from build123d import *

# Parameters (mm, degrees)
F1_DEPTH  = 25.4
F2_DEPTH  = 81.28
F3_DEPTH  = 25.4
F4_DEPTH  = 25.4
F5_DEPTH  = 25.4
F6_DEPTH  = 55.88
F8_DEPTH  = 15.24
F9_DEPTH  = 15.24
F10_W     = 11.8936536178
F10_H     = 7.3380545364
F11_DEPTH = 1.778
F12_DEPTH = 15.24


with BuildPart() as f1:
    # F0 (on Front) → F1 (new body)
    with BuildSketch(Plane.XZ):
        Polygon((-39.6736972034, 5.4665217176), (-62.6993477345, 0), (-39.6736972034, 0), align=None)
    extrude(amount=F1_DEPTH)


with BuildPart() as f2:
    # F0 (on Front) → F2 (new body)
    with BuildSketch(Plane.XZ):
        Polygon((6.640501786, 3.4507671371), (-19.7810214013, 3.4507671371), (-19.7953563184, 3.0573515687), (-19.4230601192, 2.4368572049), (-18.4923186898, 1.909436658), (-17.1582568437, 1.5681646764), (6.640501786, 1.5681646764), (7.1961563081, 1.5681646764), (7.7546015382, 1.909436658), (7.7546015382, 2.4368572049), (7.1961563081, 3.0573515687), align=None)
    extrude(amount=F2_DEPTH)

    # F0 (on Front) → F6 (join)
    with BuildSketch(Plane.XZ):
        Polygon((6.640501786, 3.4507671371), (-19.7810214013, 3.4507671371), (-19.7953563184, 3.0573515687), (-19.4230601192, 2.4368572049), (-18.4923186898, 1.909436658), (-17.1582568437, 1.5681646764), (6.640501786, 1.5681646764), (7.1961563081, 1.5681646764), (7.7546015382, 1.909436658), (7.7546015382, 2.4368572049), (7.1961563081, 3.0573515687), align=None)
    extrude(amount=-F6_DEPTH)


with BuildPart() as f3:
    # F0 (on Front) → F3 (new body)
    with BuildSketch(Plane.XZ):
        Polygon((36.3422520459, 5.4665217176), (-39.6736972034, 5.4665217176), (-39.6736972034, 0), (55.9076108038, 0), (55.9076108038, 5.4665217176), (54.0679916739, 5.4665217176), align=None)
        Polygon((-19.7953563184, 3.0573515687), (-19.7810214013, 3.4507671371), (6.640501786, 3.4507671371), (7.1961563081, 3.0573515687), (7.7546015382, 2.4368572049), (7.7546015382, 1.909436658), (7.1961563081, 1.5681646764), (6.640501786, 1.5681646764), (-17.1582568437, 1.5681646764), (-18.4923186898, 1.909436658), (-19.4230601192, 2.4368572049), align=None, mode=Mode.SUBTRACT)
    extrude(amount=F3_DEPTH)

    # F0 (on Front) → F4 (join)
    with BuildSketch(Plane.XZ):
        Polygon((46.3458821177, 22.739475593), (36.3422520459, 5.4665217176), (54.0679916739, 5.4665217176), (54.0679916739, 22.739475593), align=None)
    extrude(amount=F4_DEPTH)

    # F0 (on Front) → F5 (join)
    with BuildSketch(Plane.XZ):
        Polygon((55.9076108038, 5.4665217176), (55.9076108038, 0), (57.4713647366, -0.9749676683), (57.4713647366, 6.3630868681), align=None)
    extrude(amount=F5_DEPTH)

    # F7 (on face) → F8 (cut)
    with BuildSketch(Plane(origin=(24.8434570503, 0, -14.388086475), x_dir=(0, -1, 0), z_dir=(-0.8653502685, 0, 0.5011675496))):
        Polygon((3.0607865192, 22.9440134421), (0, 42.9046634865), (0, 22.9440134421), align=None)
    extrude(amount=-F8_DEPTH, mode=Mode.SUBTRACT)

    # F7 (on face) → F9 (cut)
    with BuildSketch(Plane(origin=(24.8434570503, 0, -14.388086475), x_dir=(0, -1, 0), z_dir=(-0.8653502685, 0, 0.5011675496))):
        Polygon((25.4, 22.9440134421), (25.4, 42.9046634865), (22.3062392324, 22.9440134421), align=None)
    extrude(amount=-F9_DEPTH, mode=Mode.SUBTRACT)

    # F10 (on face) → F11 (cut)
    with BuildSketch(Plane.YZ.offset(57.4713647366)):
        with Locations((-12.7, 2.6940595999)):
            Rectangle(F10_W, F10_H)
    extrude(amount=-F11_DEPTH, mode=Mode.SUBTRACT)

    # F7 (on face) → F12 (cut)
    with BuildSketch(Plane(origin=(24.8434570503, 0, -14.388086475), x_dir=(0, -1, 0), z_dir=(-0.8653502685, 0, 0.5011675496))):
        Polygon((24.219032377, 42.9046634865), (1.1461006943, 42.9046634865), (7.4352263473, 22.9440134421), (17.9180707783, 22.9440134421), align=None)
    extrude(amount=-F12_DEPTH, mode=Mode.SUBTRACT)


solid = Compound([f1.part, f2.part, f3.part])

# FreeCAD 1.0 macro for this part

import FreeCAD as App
import Part
import Sketcher
from FreeCAD import Vector
Q = App.Units.Quantity

doc = App.newDocument("Part")
params = doc.addObject("Spreadsheet::Sheet", "Params")
for row, (alias, value) in enumerate([
    ("pad1_length", "1 in"),
    ("pad2_length", "3.2 in"),
    ("pad3_length", "2.2 in"),
    ("pad4_length", "1 in"),
    ("pad5_length", "1 in"),
    ("pad6_length", "1 in"),
    ("pocket1_length", "0.6 in"),
    ("pocket2_length", "0.6 in"),
    ("pocket3_length", "0.07 in"),
    ("pocket4_length", "0.6 in"),
], start=1):
    params.set(f"A{row}", alias)
    params.set(f"B{row}", "=" + value)
    params.setAlias(f"B{row}", alias)

body = doc.addObject("PartDesign::Body", "Body")

# Sketch on XZ plane
sketch1 = body.newObject("Sketcher::SketchObject", "Sketch")
sketch1.AttachmentSupport = (doc.getObject("XZ_Plane"), [""])
sketch1.MapMode = "FlatFace"
sketch1.addGeometry([
    Part.LineSegment(Vector(-40, 5, 0), Vector(-63, 0, 0)),
    Part.LineSegment(Vector(-63, 0, 0), Vector(-40, 0, 0)),
    Part.LineSegment(Vector(-40, 0, 0), Vector(-40, 5, 0)),
], False)
sketch1.addConstraint([
    Sketcher.Constraint("Coincident", 0, 2, 1, 1),
    Sketcher.Constraint("Coincident", 1, 2, 2, 1),
    Sketcher.Constraint("Coincident", 2, 2, 0, 1),
    Sketcher.Constraint("Horizontal", 1),
    Sketcher.Constraint("Vertical", 2),
    Sketcher.Constraint("PointOnObject", 0, 2, -1),
    Sketcher.Constraint("DistanceX", 1, 1, 1, 2, 23.025651),
    Sketcher.Constraint("DistanceY", 2, 1, 2, 2, 5.466522),
    Sketcher.Constraint("DistanceX", 0, 2, -1, 1, 62.699348),
])
pad1 = body.newObject("PartDesign::Pad", "Pad")
pad1.Profile = sketch1
pad1.setExpression("Length", "Params.pad1_length")
body2 = doc.addObject("PartDesign::Body", "Body001")

# Sketch on XZ plane
sketch2 = body2.newObject("Sketcher::SketchObject", "Sketch001")
sketch2.AttachmentSupport = (doc.getObject("XZ_Plane001"), [""])
sketch2.MapMode = "FlatFace"
sketch2.addGeometry([
    Part.LineSegment(Vector(6.64, 3.45, 0), Vector(-19.78, 3.45, 0)),  # 0
    Part.LineSegment(Vector(-19.78, 3.45, 0), Vector(-19.8, 3.06, 0)),  # 1
    Part.LineSegment(Vector(-19.8, 3.06, 0), Vector(-19.42, 2.44, 0)),  # 2
    Part.LineSegment(Vector(-19.42, 2.44, 0), Vector(-18.49, 1.91, 0)),  # 3
    Part.LineSegment(Vector(-18.49, 1.91, 0), Vector(-17.16, 1.57, 0)),  # 4
    Part.LineSegment(Vector(-17.16, 1.57, 0), Vector(7.2, 1.57, 0)),  # 5
    Part.LineSegment(Vector(7.2, 1.57, 0), Vector(7.75, 1.91, 0)),  # 6
    Part.LineSegment(Vector(7.75, 1.91, 0), Vector(7.75, 2.44, 0)),  # 7
    Part.LineSegment(Vector(7.75, 2.44, 0), Vector(7.2, 3.06, 0)),  # 8
    Part.LineSegment(Vector(7.2, 3.06, 0), Vector(6.64, 3.45, 0)),  # 9
], False)
sketch2.addConstraint([
    Sketcher.Constraint("Coincident", 0, 2, 1, 1),
    Sketcher.Constraint("Coincident", 1, 2, 2, 1),
    Sketcher.Constraint("Coincident", 2, 2, 3, 1),
    Sketcher.Constraint("Coincident", 3, 2, 4, 1),
    Sketcher.Constraint("Coincident", 4, 2, 5, 1),
    Sketcher.Constraint("Coincident", 5, 2, 6, 1),
    Sketcher.Constraint("Coincident", 6, 2, 7, 1),
    Sketcher.Constraint("Coincident", 7, 2, 8, 1),
    Sketcher.Constraint("Coincident", 8, 2, 9, 1),
    Sketcher.Constraint("Coincident", 9, 2, 0, 1),
    Sketcher.Constraint("Horizontal", 0),
    Sketcher.Constraint("Horizontal", 5),
    Sketcher.Constraint("Vertical", 7),
    Sketcher.Constraint("Horizontal", 3, 2, 6, 2),
    Sketcher.Constraint("Horizontal", 2, 2, 7, 2),
    Sketcher.Constraint("Horizontal", 1, 2, 8, 2),
    Sketcher.Constraint("Vertical", 5, 2, 8, 2),
    Sketcher.Constraint("DistanceY", 7, 1, 7, 2, 0.527421),
    Sketcher.Constraint("DistanceX", -1, 1, 6, 2, 7.754602),
    Sketcher.Constraint("DistanceX", -1, 1, 9, 2, 6.640502),
    Sketcher.Constraint("DistanceX", 1, 2, 4, 2, 2.637099),
    Sketcher.Constraint("Distance", 3, 1.069791),
    Sketcher.Constraint("Distance", 4, 1.377021),
    Sketcher.Constraint("Distance", 8, 0.83479),
    Sketcher.Constraint("Distance", 9, 0.680829),
    Sketcher.Constraint("DistanceX", 0, 2, 0, 1, 26.421523),
    Sketcher.Constraint("DistanceX", 5, 1, 5, 2, 24.354413),
    Sketcher.Constraint("DistanceY", -1, 1, 1, 2, 3.057352),
    Sketcher.Constraint("DistanceX", 2, 2, -1, 1, 19.42306),
    Sketcher.Constraint("DistanceY", 2, 2, 0, 2, 1.01391),
])
pad2 = body2.newObject("PartDesign::Pad", "Pad001")
pad2.Profile = sketch2
pad2.setExpression("Length", "Params.pad2_length")

# Sketch on XZ plane
sketch3 = body2.newObject("Sketcher::SketchObject", "Sketch002")
sketch3.AttachmentSupport = (doc.getObject("XZ_Plane001"), [""])
sketch3.MapMode = "FlatFace"
sketch3.addGeometry([
    Part.LineSegment(Vector(6.64, 3.45, 0), Vector(-19.78, 3.45, 0)),  # 0
    Part.LineSegment(Vector(-19.78, 3.45, 0), Vector(-19.8, 3.06, 0)),  # 1
    Part.LineSegment(Vector(-19.8, 3.06, 0), Vector(-19.42, 2.44, 0)),  # 2
    Part.LineSegment(Vector(-19.42, 2.44, 0), Vector(-18.49, 1.91, 0)),  # 3
    Part.LineSegment(Vector(-18.49, 1.91, 0), Vector(-17.16, 1.57, 0)),  # 4
    Part.LineSegment(Vector(-17.16, 1.57, 0), Vector(7.2, 1.57, 0)),  # 5
    Part.LineSegment(Vector(7.2, 1.57, 0), Vector(7.75, 1.91, 0)),  # 6
    Part.LineSegment(Vector(7.75, 1.91, 0), Vector(7.75, 2.44, 0)),  # 7
    Part.LineSegment(Vector(7.75, 2.44, 0), Vector(7.2, 3.06, 0)),  # 8
    Part.LineSegment(Vector(7.2, 3.06, 0), Vector(6.64, 3.45, 0)),  # 9
], False)
sketch3.addConstraint([
    Sketcher.Constraint("Coincident", 0, 2, 1, 1),
    Sketcher.Constraint("Coincident", 1, 2, 2, 1),
    Sketcher.Constraint("Coincident", 2, 2, 3, 1),
    Sketcher.Constraint("Coincident", 3, 2, 4, 1),
    Sketcher.Constraint("Coincident", 4, 2, 5, 1),
    Sketcher.Constraint("Coincident", 5, 2, 6, 1),
    Sketcher.Constraint("Coincident", 6, 2, 7, 1),
    Sketcher.Constraint("Coincident", 7, 2, 8, 1),
    Sketcher.Constraint("Coincident", 8, 2, 9, 1),
    Sketcher.Constraint("Coincident", 9, 2, 0, 1),
    Sketcher.Constraint("Horizontal", 0),
    Sketcher.Constraint("Horizontal", 5),
    Sketcher.Constraint("Vertical", 7),
    Sketcher.Constraint("Horizontal", 3, 2, 6, 2),
    Sketcher.Constraint("Horizontal", 2, 2, 7, 2),
    Sketcher.Constraint("Horizontal", 1, 2, 8, 2),
    Sketcher.Constraint("Vertical", 5, 2, 8, 2),
    Sketcher.Constraint("DistanceY", 7, 1, 7, 2, 0.527421),
    Sketcher.Constraint("DistanceX", -1, 1, 6, 2, 7.754602),
    Sketcher.Constraint("DistanceX", -1, 1, 9, 2, 6.640502),
    Sketcher.Constraint("DistanceX", 1, 2, 4, 2, 2.637099),
    Sketcher.Constraint("Distance", 3, 1.069791),
    Sketcher.Constraint("Distance", 4, 1.377021),
    Sketcher.Constraint("Distance", 8, 0.83479),
    Sketcher.Constraint("Distance", 9, 0.680829),
    Sketcher.Constraint("DistanceX", 0, 2, 0, 1, 26.421523),
    Sketcher.Constraint("DistanceX", 5, 1, 5, 2, 24.354413),
    Sketcher.Constraint("DistanceY", -1, 1, 1, 2, 3.057352),
    Sketcher.Constraint("DistanceX", 2, 2, -1, 1, 19.42306),
    Sketcher.Constraint("DistanceY", 2, 2, 0, 2, 1.01391),
])
pad3 = body2.newObject("PartDesign::Pad", "Pad002")
pad3.Profile = sketch3
pad3.setExpression("Length", "Params.pad3_length")
pad3.Reversed = True
body3 = doc.addObject("PartDesign::Body", "Body002")

# Sketch on XZ plane
sketch4 = body3.newObject("Sketcher::SketchObject", "Sketch003")
sketch4.AttachmentSupport = (doc.getObject("XZ_Plane002"), [""])
sketch4.MapMode = "FlatFace"
sketch4.addGeometry([
    Part.LineSegment(Vector(-39.67, 5.47, 0), Vector(-39.67, 0, 0)),  # 0
    Part.LineSegment(Vector(-39.67, 0, 0), Vector(55.91, 0, 0)),  # 1
    Part.LineSegment(Vector(55.91, 0, 0), Vector(55.91, 5.47, 0)),  # 2
    Part.LineSegment(Vector(55.91, 5.47, 0), Vector(-39.67, 5.47, 0)),  # 3
    Part.LineSegment(Vector(-19.42, 2.44, 0), Vector(-19.8, 3.06, 0)),  # 4
    Part.LineSegment(Vector(-19.8, 3.06, 0), Vector(-19.78, 3.45, 0)),  # 5
    Part.LineSegment(Vector(-19.78, 3.45, 0), Vector(6.64, 3.45, 0)),  # 6
    Part.LineSegment(Vector(6.64, 3.45, 0), Vector(7.2, 3.06, 0)),  # 7
    Part.LineSegment(Vector(7.2, 3.06, 0), Vector(7.75, 2.44, 0)),  # 8
    Part.LineSegment(Vector(7.75, 2.44, 0), Vector(7.75, 1.91, 0)),  # 9
    Part.LineSegment(Vector(7.75, 1.91, 0), Vector(7.2, 1.57, 0)),  # 10
    Part.LineSegment(Vector(7.2, 1.57, 0), Vector(-17.16, 1.57, 0)),  # 11
    Part.LineSegment(Vector(-17.16, 1.57, 0), Vector(-18.49, 1.91, 0)),  # 12
    Part.LineSegment(Vector(-18.49, 1.91, 0), Vector(-19.42, 2.44, 0)),  # 13
], False)
sketch4.addConstraint([
    Sketcher.Constraint("Coincident", 0, 2, 1, 1),
    Sketcher.Constraint("Coincident", 1, 2, 2, 1),
    Sketcher.Constraint("Coincident", 2, 2, 3, 1),
    Sketcher.Constraint("Coincident", 3, 2, 0, 1),
    Sketcher.Constraint("Coincident", 4, 2, 5, 1),
    Sketcher.Constraint("Coincident", 5, 2, 6, 1),
    Sketcher.Constraint("Coincident", 6, 2, 7, 1),
    Sketcher.Constraint("Coincident", 7, 2, 8, 1),
    Sketcher.Constraint("Coincident", 8, 2, 9, 1),
    Sketcher.Constraint("Coincident", 9, 2, 10, 1),
    Sketcher.Constraint("Coincident", 10, 2, 11, 1),
    Sketcher.Constraint("Coincident", 11, 2, 12, 1),
    Sketcher.Constraint("Coincident", 12, 2, 13, 1),
    Sketcher.Constraint("Coincident", 13, 2, 4, 1),
    Sketcher.Constraint("Vertical", 0),
    Sketcher.Constraint("Horizontal", 1),
    Sketcher.Constraint("Vertical", 2),
    Sketcher.Constraint("Horizontal", 3),
    Sketcher.Constraint("Horizontal", 6),
    Sketcher.Constraint("Vertical", 9),
    Sketcher.Constraint("Horizontal", 11),
    Sketcher.Constraint("PointOnObject", 0, 2, -1),
    Sketcher.Constraint("Horizontal", 4, 2, 7, 2),
    Sketcher.Constraint("Horizontal", 9, 2, 12, 2),
    Sketcher.Constraint("Horizontal", 8, 2, 13, 2),
    Sketcher.Constraint("Vertical", 7, 2, 10, 2),
    Sketcher.Constraint("DistanceX", 1, 1, 1, 2, 95.581308),
    Sketcher.Constraint("DistanceY", 0, 2, 0, 1, 5.466522),
    Sketcher.Constraint("DistanceY", 9, 2, 9, 1, 0.527421),
    Sketcher.Constraint("DistanceX", -1, 1, 6, 2, 6.640502),
    Sketcher.Constraint("DistanceX", -1, 1, 8, 2, 7.754602),
    Sketcher.Constraint("DistanceX", 3, 2, 6, 2, 46.314199),
    Sketcher.Constraint("DistanceX", 4, 2, 11, 2, 2.637099),
    Sketcher.Constraint("Distance", 7, 0.680829),
    Sketcher.Constraint("Distance", 8, 0.83479),
    Sketcher.Constraint("Distance", 12, 1.377021),
    Sketcher.Constraint("Distance", 13, 1.069791),
    Sketcher.Constraint("DistanceX", 6, 1, 6, 2, 26.421523),
    Sketcher.Constraint("DistanceX", 11, 2, 11, 1, 24.354413),
    Sketcher.Constraint("DistanceY", -1, 1, 4, 2, 3.057352),
    Sketcher.Constraint("DistanceX", 12, 2, -1, 1, 18.492319),
    Sketcher.Constraint("DistanceX", 3, 2, 4, 2, 19.878341),
])
pad4 = body3.newObject("PartDesign::Pad", "Pad003")
pad4.Profile = sketch4
pad4.setExpression("Length", "Params.pad4_length")

# Sketch on XZ plane
sketch5 = body3.newObject("Sketcher::SketchObject", "Sketch004")
sketch5.AttachmentSupport = (doc.getObject("XZ_Plane002"), [""])
sketch5.MapMode = "FlatFace"
sketch5.addGeometry([
    Part.LineSegment(Vector(46, 23, 0), Vector(36, 5, 0)),
    Part.LineSegment(Vector(36, 5, 0), Vector(54, 5, 0)),
    Part.LineSegment(Vector(54, 5, 0), Vector(54, 23, 0)),
    Part.LineSegment(Vector(54, 23, 0), Vector(46, 23, 0)),
], False)
sketch5.addConstraint([
    Sketcher.Constraint("Coincident", 0, 2, 1, 1),
    Sketcher.Constraint("Coincident", 1, 2, 2, 1),
    Sketcher.Constraint("Coincident", 2, 2, 3, 1),
    Sketcher.Constraint("Coincident", 3, 2, 0, 1),
    Sketcher.Constraint("Horizontal", 1),
    Sketcher.Constraint("Vertical", 2),
    Sketcher.Constraint("Horizontal", 3),
    Sketcher.Constraint("DistanceX", 1, 1, 1, 2, 17.72574),
    Sketcher.Constraint("DistanceX", 3, 2, 3, 1, 7.72211),
    Sketcher.Constraint("Distance", 0, 19.96065),
    Sketcher.Constraint("DistanceY", -1, 1, 0, 2, 5.466522),
    Sketcher.Constraint("DistanceX", -1, 1, 1, 2, 54.067992),
])
pad5 = body3.newObject("PartDesign::Pad", "Pad004")
pad5.Profile = sketch5
pad5.setExpression("Length", "Params.pad5_length")

# Sketch on XZ plane
sketch6 = body3.newObject("Sketcher::SketchObject", "Sketch005")
sketch6.AttachmentSupport = (doc.getObject("XZ_Plane002"), [""])
sketch6.MapMode = "FlatFace"
sketch6.addGeometry([
    Part.LineSegment(Vector(55.9, 5.5, 0), Vector(55.9, 0, 0)),
    Part.LineSegment(Vector(55.9, 0, 0), Vector(57.5, -1, 0)),
    Part.LineSegment(Vector(57.5, -1, 0), Vector(57.5, 6.4, 0)),
    Part.LineSegment(Vector(57.5, 6.4, 0), Vector(55.9, 5.5, 0)),
], False)
sketch6.addConstraint([
    Sketcher.Constraint("Coincident", 0, 2, 1, 1),
    Sketcher.Constraint("Coincident", 1, 2, 2, 1),
    Sketcher.Constraint("Coincident", 2, 2, 3, 1),
    Sketcher.Constraint("Coincident", 3, 2, 0, 1),
    Sketcher.Constraint("Vertical", 0),
    Sketcher.Constraint("Vertical", 2),
    Sketcher.Constraint("PointOnObject", 0, 2, -1),
    Sketcher.Constraint("DistanceY", 0, 2, 0, 1, 5.466522),
    Sketcher.Constraint("Distance", 3, 1.802541),
    Sketcher.Constraint("DistanceY", 2, 1, 2, 2, 7.338055),
    Sketcher.Constraint("DistanceX", -1, 1, 0, 2, 55.907611),
    Sketcher.Constraint("DistanceY", 1, 2, 3, 2, 6.441489),
])
pad6 = body3.newObject("PartDesign::Pad", "Pad005")
pad6.Profile = sketch6
pad6.setExpression("Length", "Params.pad6_length")

# Sketch on an angled plane
sketch7 = body3.newObject("Sketcher::SketchObject", "Sketch006")
sketch7.Placement = App.Placement(Vector(24.843457, 0, -14.388086), App.Rotation(Vector(0, -1, 0), Vector(0.50116755, 0, 0.865350269), Vector(-0.865350269, 0, 0.50116755), "ZXY"))
sketch7.addGeometry([
    Part.LineSegment(Vector(3.1, 22.9, 0), Vector(0, 42.9, 0)),
    Part.LineSegment(Vector(0, 42.9, 0), Vector(0, 22.9, 0)),
    Part.LineSegment(Vector(0, 22.9, 0), Vector(3.1, 22.9, 0)),
], False)
sketch7.addConstraint([
    Sketcher.Constraint("Coincident", 0, 2, 1, 1),
    Sketcher.Constraint("Coincident", 1, 2, 2, 1),
    Sketcher.Constraint("Coincident", 2, 2, 0, 1),
    Sketcher.Constraint("Vertical", 1),
    Sketcher.Constraint("Horizontal", 2),
    Sketcher.Constraint("PointOnObject", 0, 2, -2),
    Sketcher.Constraint("DistanceY", 1, 2, 1, 1, 19.96065),
    Sketcher.Constraint("Distance", 0, 20.193959),
    Sketcher.Constraint("DistanceY", -1, 1, 0, 2, 42.904664),
])
pocket1 = body3.newObject("PartDesign::Pocket", "Pocket")
pocket1.Profile = sketch7
pocket1.setExpression("Length", "Params.pocket1_length")

# Sketch on an angled plane
sketch8 = body3.newObject("Sketcher::SketchObject", "Sketch007")
sketch8.Placement = App.Placement(Vector(24.843457, 0, -14.388086), App.Rotation(Vector(0, -1, 0), Vector(0.50116755, 0, 0.865350269), Vector(-0.865350269, 0, 0.50116755), "ZXY"))
sketch8.addGeometry([
    Part.LineSegment(Vector(25.4, 22.9, 0), Vector(25.4, 42.9, 0)),
    Part.LineSegment(Vector(25.4, 42.9, 0), Vector(22.3, 22.9, 0)),
    Part.LineSegment(Vector(22.3, 22.9, 0), Vector(25.4, 22.9, 0)),
], False)
sketch8.addConstraint([
    Sketcher.Constraint("Coincident", 0, 2, 1, 1),
    Sketcher.Constraint("Coincident", 1, 2, 2, 1),
    Sketcher.Constraint("Coincident", 2, 2, 0, 1),
    Sketcher.Constraint("Vertical", 0),
    Sketcher.Constraint("Horizontal", 2),
    Sketcher.Constraint("DistanceX", -1, 1, 0, 2, Q("1 in")),
    Sketcher.Constraint("DistanceX", 2, 1, 2, 2, 3.093761),
    Sketcher.Constraint("DistanceY", 0, 1, 0, 2, 19.96065),
    Sketcher.Constraint("DistanceY", -1, 1, 0, 2, 42.904664),
])
pocket2 = body3.newObject("PartDesign::Pocket", "Pocket001")
pocket2.Profile = sketch8
pocket2.setExpression("Length", "Params.pocket2_length")

# Sketch on YZ plane
sketch9 = body3.newObject("Sketcher::SketchObject", "Sketch008")
sketch9.AttachmentSupport = (doc.getObject("YZ_Plane002"), [""])
sketch9.MapMode = "FlatFace"
sketch9.AttachmentOffset = App.Placement(Vector(0, 0, 57.471365), App.Rotation())
sketch9.addGeometry([
    Part.LineSegment(Vector(-19, 6, 0), Vector(-19, -1, 0)),
    Part.LineSegment(Vector(-19, -1, 0), Vector(-7, -1, 0)),
    Part.LineSegment(Vector(-7, -1, 0), Vector(-7, 6, 0)),
    Part.LineSegment(Vector(-7, 6, 0), Vector(-19, 6, 0)),
], False)
sketch9.addConstraint([
    Sketcher.Constraint("Coincident", 0, 2, 1, 1),
    Sketcher.Constraint("Coincident", 1, 2, 2, 1),
    Sketcher.Constraint("Coincident", 2, 2, 3, 1),
    Sketcher.Constraint("Coincident", 3, 2, 0, 1),
    Sketcher.Constraint("Vertical", 0),
    Sketcher.Constraint("Horizontal", 1),
    Sketcher.Constraint("Vertical", 2),
    Sketcher.Constraint("Horizontal", 3),
    Sketcher.Constraint("DistanceX", 1, 1, 1, 2, 11.893654),
    Sketcher.Constraint("DistanceY", 0, 2, 0, 1, 7.338055),
    Sketcher.Constraint("DistanceX", 0, 2, -1, 1, 18.646827),
    Sketcher.Constraint("DistanceY", 0, 2, -1, 1, 0.974968),
])
pocket3 = body3.newObject("PartDesign::Pocket", "Pocket002")
pocket3.Profile = sketch9
pocket3.setExpression("Length", "Params.pocket3_length")

# Sketch on an angled plane
sketch10 = body3.newObject("Sketcher::SketchObject", "Sketch009")
sketch10.Placement = App.Placement(Vector(24.843457, 0, -14.388086), App.Rotation(Vector(0, -1, 0), Vector(0.50116755, 0, 0.865350269), Vector(-0.865350269, 0, 0.50116755), "ZXY"))
sketch10.addGeometry([
    Part.LineSegment(Vector(24, 43, 0), Vector(1, 43, 0)),
    Part.LineSegment(Vector(1, 43, 0), Vector(7, 23, 0)),
    Part.LineSegment(Vector(7, 23, 0), Vector(18, 23, 0)),
    Part.LineSegment(Vector(18, 23, 0), Vector(24, 43, 0)),
], False)
sketch10.addConstraint([
    Sketcher.Constraint("Coincident", 0, 2, 1, 1),
    Sketcher.Constraint("Coincident", 1, 2, 2, 1),
    Sketcher.Constraint("Coincident", 2, 2, 3, 1),
    Sketcher.Constraint("Coincident", 3, 2, 0, 1),
    Sketcher.Constraint("Horizontal", 0),
    Sketcher.Constraint("Horizontal", 2),
    Sketcher.Constraint("DistanceX", 0, 2, 0, 1, 23.072932),
    Sketcher.Constraint("DistanceX", -1, 1, 0, 2, 1.146101),
    Sketcher.Constraint("DistanceX", 2, 1, 2, 2, 10.482844),
    Sketcher.Constraint("DistanceX", -1, 1, 2, 2, 17.918071),
    Sketcher.Constraint("DistanceY", 1, 2, 0, 2, 19.96065),
    Sketcher.Constraint("DistanceY", -1, 1, 0, 2, 42.904664),
])
pocket4 = body3.newObject("PartDesign::Pocket", "Pocket003")
pocket4.Profile = sketch10
pocket4.setExpression("Length", "Params.pocket4_length")

doc.recompute()
